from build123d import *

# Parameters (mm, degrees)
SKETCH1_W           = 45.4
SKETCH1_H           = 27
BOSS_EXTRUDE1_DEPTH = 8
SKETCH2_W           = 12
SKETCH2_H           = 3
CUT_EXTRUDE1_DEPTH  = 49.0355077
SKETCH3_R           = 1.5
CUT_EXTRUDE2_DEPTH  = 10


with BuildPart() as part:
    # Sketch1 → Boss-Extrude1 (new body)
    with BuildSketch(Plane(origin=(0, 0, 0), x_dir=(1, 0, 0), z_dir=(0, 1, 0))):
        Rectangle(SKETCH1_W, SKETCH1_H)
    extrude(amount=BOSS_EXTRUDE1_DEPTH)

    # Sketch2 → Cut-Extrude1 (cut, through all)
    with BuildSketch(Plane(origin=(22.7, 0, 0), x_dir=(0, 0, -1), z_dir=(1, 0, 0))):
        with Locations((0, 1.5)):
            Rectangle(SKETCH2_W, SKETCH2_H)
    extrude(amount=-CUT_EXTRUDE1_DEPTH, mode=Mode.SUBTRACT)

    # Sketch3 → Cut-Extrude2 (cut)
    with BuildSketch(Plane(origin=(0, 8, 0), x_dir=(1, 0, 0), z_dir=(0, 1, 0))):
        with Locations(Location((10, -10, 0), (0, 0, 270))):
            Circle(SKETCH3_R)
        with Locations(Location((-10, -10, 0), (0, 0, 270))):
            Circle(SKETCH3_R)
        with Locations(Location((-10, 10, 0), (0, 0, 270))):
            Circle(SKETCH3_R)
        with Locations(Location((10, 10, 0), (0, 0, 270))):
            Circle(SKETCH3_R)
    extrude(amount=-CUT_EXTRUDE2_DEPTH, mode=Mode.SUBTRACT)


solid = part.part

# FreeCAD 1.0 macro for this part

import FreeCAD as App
import Part
import Sketcher

V = App.Vector

doc = App.newDocument("Part")
body = doc.addObject("PartDesign::Body", "Body")

# Sketch on XZ plane
sketch1 = body.newObject("Sketcher::SketchObject", "Sketch")
sketch1.AttachmentSupport = (doc.getObject("XZ_Plane"), [""])
sketch1.MapMode = "FlatFace"
sketch1.addGeometry([
    Part.LineSegment(V(-23, -14, 0), V(-23, 14, 0)),
    Part.LineSegment(V(-23, 14, 0), V(23, 14, 0)),
    Part.LineSegment(V(23, 14, 0), V(23, -14, 0)),
    Part.LineSegment(V(23, -14, 0), V(-23, -14, 0)),
], False)
sketch1.addConstraint([
    Sketcher.Constraint("Coincident", 0, 2, 1, 1),
    Sketcher.Constraint("Coincident", 1, 2, 2, 1),
    Sketcher.Constraint("Coincident", 2, 2, 3, 1),
    Sketcher.Constraint("Coincident", 3, 2, 0, 1),
    Sketcher.Constraint("Vertical", 0),
    Sketcher.Constraint("Horizontal", 1),
    Sketcher.Constraint("Vertical", 2),
    Sketcher.Constraint("Horizontal", 3),
    Sketcher.Constraint("Symmetric", 0, 2, 2, 2, -1, 1),
    Sketcher.Constraint("DistanceY", 0, 1, 0, 2, 27.0),
    Sketcher.Constraint("DistanceX", 1, 1, 1, 2, 45.4),
])
pad1 = body.newObject("PartDesign::Pad", "Pad")
pad1.Profile = sketch1
pad1.Length = 8
pad1.Reversed = True

# Sketch on YZ plane
sketch2 = body.newObject("Sketcher::SketchObject", "Sketch001")
sketch2.AttachmentSupport = (doc.getObject("YZ_Plane"), [""])
sketch2.MapMode = "FlatFace"
sketch2.AttachmentOffset = App.Placement(V(0, 0, 22.7), App.Rotation())
sketch2.addGeometry([
    Part.LineSegment(V(3, 6, 0), V(0, 6, 0)),
    Part.LineSegment(V(0, 6, 0), V(0, -6, 0)),
    Part.LineSegment(V(0, -6, 0), V(3, -6, 0)),
    Part.LineSegment(V(3, -6, 0), V(3, 6, 0)),
], False)
sketch2.addConstraint([
    Sketcher.Constraint("Coincident", 0, 2, 1, 1),
    Sketcher.Constraint("Coincident", 1, 2, 2, 1),
    Sketcher.Constraint("Coincident", 2, 2, 3, 1),
    Sketcher.Constraint("Coincident", 3, 2, 0, 1),
    Sketcher.Constraint("Horizontal", 0),
    Sketcher.Constraint("Vertical", 1),
    Sketcher.Constraint("Horizontal", 2),
    Sketcher.Constraint("Vertical", 3),
    Sketcher.Constraint("Symmetric", 0, 2, 1, 2, -1, 1),
    Sketcher.Constraint("DistanceX", 0, 2, 0, 1, 3.0),
    Sketcher.Constraint("DistanceY", 1, 2, 1, 1, 12.0),
])
pocket1 = body.newObject("PartDesign::Pocket", "Pocket")
pocket1.Profile = sketch2
pocket1.Type = "ThroughAll"

# Sketch on XZ plane
sketch3 = body.newObject("Sketcher::SketchObject", "Sketch002")
sketch3.AttachmentSupport = (doc.getObject("XZ_Plane"), [""])
sketch3.MapMode = "FlatFace"
sketch3.AttachmentOffset = App.Placement(V(0, 0, -8), App.Rotation())
sketch3.addGeometry([
    Part.Circle(V(10, 10, 0), V(0, 0, 1), 1.5),
    Part.Circle(V(-10, 10, 0), V(0, 0, 1), 1.5),
    Part.Circle(V(-10, -10, 0), V(0, 0, 1), 1.5),
    Part.Circle(V(10, -10, 0), V(0, 0, 1), 1.5),
], False)
sketch3.addConstraint([
    Sketcher.Constraint("Equal", 0, 1),
    Sketcher.Constraint("Equal", 1, 2),
    Sketcher.Constraint("Equal", 2, 3),
    Sketcher.Constraint("Symmetric", 0, 3, 2, 3, -1, 1),
    Sketcher.Constraint("Symmetric", 1, 3, 3, 3, -1, 1),
    Sketcher.Constraint("Symmetric", 0, 3, 1, 3, -2),
    Sketcher.Constraint("Diameter", 0, 3.0),
    Sketcher.Constraint("DistanceX", -1, 1, 0, 3, 10.0),
    Sketcher.Constraint("DistanceY", -1, 1, 0, 3, 10.0),
])
pocket2 = body.newObject("PartDesign::Pocket", "Pocket001")
pocket2.Profile = sketch3
pocket2.Length = 10
pocket2.Reversed = True

doc.recompute()
